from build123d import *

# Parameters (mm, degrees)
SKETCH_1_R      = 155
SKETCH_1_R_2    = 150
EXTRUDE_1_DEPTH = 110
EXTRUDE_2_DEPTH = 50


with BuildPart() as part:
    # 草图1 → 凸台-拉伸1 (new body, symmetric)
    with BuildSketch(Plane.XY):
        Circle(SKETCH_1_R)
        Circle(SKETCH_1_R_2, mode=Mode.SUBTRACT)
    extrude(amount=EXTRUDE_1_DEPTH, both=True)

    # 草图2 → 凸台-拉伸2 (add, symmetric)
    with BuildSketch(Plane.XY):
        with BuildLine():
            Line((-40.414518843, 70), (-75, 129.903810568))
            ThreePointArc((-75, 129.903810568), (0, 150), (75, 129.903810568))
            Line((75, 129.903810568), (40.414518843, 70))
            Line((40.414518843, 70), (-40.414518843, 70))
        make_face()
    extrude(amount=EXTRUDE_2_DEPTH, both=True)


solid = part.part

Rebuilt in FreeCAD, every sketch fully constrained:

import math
import FreeCAD as App
import Part
import Sketcher
Q = App.Units.Quantity

doc = App.newDocument("Part")
params = doc.addObject("Spreadsheet::Sheet", "Params")
for row, (alias, value) in enumerate([
    ("sketch1_diameter", "310 mm"),
    ("sketch1_diameter2", "300 mm"),
    ("pad1_length", "220 mm"),
    ("sketch2_radius", "150 mm"),
    ("pad2_length", "100 mm"),
], start=1):
    params.set(f"A{row}", alias)
    params.set(f"B{row}", "=" + value)
    params.setAlias(f"B{row}", alias)

body = doc.addObject("PartDesign::Body", "Body")

# Sketch on XY plane
sketch1 = body.newObject("Sketcher::SketchObject", "Sketch")
sketch1.AttachmentSupport = (doc.getObject("XY_Plane"), [""])
sketch1.MapMode = "FlatFace"
sketch1.addGeometry([
    Part.Circle(App.Vector(0, 0, 0), App.Vector(0, 0, 1), 155),
    Part.Circle(App.Vector(0, 0, 0), App.Vector(0, 0, 1), 150),
], False)
sketch1.addConstraint([
    Sketcher.Constraint("Coincident", 0, 3, -1, 1),
    Sketcher.Constraint("Coincident", 1, 3, -1, 1),
    Sketcher.Constraint("Diameter", 0, Q("310 mm")),
    Sketcher.Constraint("Diameter", 1, Q("300 mm")),
])
sketch1.setExpression("Constraints[2]", "Params.sketch1_diameter")
sketch1.setExpression("Constraints[3]", "Params.sketch1_diameter2")
pad1 = body.newObject("PartDesign::Pad", "Pad")
pad1.Profile = sketch1
pad1.setExpression("Length", "Params.pad1_length")
pad1.Midplane = True

# Sketch on XY plane
sketch2 = body.newObject("Sketcher::SketchObject", "Sketch001")
sketch2.AttachmentSupport = (doc.getObject("XY_Plane"), [""])
sketch2.MapMode = "FlatFace"
sketch2.addGeometry([
    Part.LineSegment(App.Vector(-75, 130, 0), App.Vector(-40, 70, 0)),
    Part.LineSegment(App.Vector(-40, 70, 0), App.Vector(40, 70, 0)),
    Part.LineSegment(App.Vector(40, 70, 0), App.Vector(75, 130, 0)),
    Part.ArcOfCircle(Part.Circle(App.Vector(0, 0, 0), App.Vector(0, 0, 1), 150), math.radians(60), math.radians(120)),
], False)
sketch2.addConstraint([
    Sketcher.Constraint("Coincident", 0, 2, 1, 1),
    Sketcher.Constraint("Coincident", 1, 2, 2, 1),
    Sketcher.Constraint("Coincident", 2, 2, 3, 1),
    Sketcher.Constraint("Coincident", 3, 2, 0, 1),
    Sketcher.Constraint("Horizontal", 1),
    Sketcher.Constraint("Coincident", 3, 3, -1, 1),
    Sketcher.Constraint("Horizontal", 2, 2, 3, 2),
    Sketcher.Constraint("Equal", 0, 2),
    Sketcher.Constraint("Radius", 3, Q("150 mm")),
    Sketcher.Constraint("Angle", 0, Q("-60 deg")),
    Sketcher.Constraint("DistanceY", -1, 1, 0, 2, Q("70 mm")),
    Sketcher.Constraint("DistanceX", -1, 1, 2, 2, Q("75 mm")),
])
sketch2.setExpression("Constraints[8]", "Params.sketch2_radius")
pad2 = body.newObject("PartDesign::Pad", "Pad001")
pad2.Profile = sketch2
pad2.setExpression("Length", "Params.pad2_length")
pad2.Midplane = True

doc.recompute()
